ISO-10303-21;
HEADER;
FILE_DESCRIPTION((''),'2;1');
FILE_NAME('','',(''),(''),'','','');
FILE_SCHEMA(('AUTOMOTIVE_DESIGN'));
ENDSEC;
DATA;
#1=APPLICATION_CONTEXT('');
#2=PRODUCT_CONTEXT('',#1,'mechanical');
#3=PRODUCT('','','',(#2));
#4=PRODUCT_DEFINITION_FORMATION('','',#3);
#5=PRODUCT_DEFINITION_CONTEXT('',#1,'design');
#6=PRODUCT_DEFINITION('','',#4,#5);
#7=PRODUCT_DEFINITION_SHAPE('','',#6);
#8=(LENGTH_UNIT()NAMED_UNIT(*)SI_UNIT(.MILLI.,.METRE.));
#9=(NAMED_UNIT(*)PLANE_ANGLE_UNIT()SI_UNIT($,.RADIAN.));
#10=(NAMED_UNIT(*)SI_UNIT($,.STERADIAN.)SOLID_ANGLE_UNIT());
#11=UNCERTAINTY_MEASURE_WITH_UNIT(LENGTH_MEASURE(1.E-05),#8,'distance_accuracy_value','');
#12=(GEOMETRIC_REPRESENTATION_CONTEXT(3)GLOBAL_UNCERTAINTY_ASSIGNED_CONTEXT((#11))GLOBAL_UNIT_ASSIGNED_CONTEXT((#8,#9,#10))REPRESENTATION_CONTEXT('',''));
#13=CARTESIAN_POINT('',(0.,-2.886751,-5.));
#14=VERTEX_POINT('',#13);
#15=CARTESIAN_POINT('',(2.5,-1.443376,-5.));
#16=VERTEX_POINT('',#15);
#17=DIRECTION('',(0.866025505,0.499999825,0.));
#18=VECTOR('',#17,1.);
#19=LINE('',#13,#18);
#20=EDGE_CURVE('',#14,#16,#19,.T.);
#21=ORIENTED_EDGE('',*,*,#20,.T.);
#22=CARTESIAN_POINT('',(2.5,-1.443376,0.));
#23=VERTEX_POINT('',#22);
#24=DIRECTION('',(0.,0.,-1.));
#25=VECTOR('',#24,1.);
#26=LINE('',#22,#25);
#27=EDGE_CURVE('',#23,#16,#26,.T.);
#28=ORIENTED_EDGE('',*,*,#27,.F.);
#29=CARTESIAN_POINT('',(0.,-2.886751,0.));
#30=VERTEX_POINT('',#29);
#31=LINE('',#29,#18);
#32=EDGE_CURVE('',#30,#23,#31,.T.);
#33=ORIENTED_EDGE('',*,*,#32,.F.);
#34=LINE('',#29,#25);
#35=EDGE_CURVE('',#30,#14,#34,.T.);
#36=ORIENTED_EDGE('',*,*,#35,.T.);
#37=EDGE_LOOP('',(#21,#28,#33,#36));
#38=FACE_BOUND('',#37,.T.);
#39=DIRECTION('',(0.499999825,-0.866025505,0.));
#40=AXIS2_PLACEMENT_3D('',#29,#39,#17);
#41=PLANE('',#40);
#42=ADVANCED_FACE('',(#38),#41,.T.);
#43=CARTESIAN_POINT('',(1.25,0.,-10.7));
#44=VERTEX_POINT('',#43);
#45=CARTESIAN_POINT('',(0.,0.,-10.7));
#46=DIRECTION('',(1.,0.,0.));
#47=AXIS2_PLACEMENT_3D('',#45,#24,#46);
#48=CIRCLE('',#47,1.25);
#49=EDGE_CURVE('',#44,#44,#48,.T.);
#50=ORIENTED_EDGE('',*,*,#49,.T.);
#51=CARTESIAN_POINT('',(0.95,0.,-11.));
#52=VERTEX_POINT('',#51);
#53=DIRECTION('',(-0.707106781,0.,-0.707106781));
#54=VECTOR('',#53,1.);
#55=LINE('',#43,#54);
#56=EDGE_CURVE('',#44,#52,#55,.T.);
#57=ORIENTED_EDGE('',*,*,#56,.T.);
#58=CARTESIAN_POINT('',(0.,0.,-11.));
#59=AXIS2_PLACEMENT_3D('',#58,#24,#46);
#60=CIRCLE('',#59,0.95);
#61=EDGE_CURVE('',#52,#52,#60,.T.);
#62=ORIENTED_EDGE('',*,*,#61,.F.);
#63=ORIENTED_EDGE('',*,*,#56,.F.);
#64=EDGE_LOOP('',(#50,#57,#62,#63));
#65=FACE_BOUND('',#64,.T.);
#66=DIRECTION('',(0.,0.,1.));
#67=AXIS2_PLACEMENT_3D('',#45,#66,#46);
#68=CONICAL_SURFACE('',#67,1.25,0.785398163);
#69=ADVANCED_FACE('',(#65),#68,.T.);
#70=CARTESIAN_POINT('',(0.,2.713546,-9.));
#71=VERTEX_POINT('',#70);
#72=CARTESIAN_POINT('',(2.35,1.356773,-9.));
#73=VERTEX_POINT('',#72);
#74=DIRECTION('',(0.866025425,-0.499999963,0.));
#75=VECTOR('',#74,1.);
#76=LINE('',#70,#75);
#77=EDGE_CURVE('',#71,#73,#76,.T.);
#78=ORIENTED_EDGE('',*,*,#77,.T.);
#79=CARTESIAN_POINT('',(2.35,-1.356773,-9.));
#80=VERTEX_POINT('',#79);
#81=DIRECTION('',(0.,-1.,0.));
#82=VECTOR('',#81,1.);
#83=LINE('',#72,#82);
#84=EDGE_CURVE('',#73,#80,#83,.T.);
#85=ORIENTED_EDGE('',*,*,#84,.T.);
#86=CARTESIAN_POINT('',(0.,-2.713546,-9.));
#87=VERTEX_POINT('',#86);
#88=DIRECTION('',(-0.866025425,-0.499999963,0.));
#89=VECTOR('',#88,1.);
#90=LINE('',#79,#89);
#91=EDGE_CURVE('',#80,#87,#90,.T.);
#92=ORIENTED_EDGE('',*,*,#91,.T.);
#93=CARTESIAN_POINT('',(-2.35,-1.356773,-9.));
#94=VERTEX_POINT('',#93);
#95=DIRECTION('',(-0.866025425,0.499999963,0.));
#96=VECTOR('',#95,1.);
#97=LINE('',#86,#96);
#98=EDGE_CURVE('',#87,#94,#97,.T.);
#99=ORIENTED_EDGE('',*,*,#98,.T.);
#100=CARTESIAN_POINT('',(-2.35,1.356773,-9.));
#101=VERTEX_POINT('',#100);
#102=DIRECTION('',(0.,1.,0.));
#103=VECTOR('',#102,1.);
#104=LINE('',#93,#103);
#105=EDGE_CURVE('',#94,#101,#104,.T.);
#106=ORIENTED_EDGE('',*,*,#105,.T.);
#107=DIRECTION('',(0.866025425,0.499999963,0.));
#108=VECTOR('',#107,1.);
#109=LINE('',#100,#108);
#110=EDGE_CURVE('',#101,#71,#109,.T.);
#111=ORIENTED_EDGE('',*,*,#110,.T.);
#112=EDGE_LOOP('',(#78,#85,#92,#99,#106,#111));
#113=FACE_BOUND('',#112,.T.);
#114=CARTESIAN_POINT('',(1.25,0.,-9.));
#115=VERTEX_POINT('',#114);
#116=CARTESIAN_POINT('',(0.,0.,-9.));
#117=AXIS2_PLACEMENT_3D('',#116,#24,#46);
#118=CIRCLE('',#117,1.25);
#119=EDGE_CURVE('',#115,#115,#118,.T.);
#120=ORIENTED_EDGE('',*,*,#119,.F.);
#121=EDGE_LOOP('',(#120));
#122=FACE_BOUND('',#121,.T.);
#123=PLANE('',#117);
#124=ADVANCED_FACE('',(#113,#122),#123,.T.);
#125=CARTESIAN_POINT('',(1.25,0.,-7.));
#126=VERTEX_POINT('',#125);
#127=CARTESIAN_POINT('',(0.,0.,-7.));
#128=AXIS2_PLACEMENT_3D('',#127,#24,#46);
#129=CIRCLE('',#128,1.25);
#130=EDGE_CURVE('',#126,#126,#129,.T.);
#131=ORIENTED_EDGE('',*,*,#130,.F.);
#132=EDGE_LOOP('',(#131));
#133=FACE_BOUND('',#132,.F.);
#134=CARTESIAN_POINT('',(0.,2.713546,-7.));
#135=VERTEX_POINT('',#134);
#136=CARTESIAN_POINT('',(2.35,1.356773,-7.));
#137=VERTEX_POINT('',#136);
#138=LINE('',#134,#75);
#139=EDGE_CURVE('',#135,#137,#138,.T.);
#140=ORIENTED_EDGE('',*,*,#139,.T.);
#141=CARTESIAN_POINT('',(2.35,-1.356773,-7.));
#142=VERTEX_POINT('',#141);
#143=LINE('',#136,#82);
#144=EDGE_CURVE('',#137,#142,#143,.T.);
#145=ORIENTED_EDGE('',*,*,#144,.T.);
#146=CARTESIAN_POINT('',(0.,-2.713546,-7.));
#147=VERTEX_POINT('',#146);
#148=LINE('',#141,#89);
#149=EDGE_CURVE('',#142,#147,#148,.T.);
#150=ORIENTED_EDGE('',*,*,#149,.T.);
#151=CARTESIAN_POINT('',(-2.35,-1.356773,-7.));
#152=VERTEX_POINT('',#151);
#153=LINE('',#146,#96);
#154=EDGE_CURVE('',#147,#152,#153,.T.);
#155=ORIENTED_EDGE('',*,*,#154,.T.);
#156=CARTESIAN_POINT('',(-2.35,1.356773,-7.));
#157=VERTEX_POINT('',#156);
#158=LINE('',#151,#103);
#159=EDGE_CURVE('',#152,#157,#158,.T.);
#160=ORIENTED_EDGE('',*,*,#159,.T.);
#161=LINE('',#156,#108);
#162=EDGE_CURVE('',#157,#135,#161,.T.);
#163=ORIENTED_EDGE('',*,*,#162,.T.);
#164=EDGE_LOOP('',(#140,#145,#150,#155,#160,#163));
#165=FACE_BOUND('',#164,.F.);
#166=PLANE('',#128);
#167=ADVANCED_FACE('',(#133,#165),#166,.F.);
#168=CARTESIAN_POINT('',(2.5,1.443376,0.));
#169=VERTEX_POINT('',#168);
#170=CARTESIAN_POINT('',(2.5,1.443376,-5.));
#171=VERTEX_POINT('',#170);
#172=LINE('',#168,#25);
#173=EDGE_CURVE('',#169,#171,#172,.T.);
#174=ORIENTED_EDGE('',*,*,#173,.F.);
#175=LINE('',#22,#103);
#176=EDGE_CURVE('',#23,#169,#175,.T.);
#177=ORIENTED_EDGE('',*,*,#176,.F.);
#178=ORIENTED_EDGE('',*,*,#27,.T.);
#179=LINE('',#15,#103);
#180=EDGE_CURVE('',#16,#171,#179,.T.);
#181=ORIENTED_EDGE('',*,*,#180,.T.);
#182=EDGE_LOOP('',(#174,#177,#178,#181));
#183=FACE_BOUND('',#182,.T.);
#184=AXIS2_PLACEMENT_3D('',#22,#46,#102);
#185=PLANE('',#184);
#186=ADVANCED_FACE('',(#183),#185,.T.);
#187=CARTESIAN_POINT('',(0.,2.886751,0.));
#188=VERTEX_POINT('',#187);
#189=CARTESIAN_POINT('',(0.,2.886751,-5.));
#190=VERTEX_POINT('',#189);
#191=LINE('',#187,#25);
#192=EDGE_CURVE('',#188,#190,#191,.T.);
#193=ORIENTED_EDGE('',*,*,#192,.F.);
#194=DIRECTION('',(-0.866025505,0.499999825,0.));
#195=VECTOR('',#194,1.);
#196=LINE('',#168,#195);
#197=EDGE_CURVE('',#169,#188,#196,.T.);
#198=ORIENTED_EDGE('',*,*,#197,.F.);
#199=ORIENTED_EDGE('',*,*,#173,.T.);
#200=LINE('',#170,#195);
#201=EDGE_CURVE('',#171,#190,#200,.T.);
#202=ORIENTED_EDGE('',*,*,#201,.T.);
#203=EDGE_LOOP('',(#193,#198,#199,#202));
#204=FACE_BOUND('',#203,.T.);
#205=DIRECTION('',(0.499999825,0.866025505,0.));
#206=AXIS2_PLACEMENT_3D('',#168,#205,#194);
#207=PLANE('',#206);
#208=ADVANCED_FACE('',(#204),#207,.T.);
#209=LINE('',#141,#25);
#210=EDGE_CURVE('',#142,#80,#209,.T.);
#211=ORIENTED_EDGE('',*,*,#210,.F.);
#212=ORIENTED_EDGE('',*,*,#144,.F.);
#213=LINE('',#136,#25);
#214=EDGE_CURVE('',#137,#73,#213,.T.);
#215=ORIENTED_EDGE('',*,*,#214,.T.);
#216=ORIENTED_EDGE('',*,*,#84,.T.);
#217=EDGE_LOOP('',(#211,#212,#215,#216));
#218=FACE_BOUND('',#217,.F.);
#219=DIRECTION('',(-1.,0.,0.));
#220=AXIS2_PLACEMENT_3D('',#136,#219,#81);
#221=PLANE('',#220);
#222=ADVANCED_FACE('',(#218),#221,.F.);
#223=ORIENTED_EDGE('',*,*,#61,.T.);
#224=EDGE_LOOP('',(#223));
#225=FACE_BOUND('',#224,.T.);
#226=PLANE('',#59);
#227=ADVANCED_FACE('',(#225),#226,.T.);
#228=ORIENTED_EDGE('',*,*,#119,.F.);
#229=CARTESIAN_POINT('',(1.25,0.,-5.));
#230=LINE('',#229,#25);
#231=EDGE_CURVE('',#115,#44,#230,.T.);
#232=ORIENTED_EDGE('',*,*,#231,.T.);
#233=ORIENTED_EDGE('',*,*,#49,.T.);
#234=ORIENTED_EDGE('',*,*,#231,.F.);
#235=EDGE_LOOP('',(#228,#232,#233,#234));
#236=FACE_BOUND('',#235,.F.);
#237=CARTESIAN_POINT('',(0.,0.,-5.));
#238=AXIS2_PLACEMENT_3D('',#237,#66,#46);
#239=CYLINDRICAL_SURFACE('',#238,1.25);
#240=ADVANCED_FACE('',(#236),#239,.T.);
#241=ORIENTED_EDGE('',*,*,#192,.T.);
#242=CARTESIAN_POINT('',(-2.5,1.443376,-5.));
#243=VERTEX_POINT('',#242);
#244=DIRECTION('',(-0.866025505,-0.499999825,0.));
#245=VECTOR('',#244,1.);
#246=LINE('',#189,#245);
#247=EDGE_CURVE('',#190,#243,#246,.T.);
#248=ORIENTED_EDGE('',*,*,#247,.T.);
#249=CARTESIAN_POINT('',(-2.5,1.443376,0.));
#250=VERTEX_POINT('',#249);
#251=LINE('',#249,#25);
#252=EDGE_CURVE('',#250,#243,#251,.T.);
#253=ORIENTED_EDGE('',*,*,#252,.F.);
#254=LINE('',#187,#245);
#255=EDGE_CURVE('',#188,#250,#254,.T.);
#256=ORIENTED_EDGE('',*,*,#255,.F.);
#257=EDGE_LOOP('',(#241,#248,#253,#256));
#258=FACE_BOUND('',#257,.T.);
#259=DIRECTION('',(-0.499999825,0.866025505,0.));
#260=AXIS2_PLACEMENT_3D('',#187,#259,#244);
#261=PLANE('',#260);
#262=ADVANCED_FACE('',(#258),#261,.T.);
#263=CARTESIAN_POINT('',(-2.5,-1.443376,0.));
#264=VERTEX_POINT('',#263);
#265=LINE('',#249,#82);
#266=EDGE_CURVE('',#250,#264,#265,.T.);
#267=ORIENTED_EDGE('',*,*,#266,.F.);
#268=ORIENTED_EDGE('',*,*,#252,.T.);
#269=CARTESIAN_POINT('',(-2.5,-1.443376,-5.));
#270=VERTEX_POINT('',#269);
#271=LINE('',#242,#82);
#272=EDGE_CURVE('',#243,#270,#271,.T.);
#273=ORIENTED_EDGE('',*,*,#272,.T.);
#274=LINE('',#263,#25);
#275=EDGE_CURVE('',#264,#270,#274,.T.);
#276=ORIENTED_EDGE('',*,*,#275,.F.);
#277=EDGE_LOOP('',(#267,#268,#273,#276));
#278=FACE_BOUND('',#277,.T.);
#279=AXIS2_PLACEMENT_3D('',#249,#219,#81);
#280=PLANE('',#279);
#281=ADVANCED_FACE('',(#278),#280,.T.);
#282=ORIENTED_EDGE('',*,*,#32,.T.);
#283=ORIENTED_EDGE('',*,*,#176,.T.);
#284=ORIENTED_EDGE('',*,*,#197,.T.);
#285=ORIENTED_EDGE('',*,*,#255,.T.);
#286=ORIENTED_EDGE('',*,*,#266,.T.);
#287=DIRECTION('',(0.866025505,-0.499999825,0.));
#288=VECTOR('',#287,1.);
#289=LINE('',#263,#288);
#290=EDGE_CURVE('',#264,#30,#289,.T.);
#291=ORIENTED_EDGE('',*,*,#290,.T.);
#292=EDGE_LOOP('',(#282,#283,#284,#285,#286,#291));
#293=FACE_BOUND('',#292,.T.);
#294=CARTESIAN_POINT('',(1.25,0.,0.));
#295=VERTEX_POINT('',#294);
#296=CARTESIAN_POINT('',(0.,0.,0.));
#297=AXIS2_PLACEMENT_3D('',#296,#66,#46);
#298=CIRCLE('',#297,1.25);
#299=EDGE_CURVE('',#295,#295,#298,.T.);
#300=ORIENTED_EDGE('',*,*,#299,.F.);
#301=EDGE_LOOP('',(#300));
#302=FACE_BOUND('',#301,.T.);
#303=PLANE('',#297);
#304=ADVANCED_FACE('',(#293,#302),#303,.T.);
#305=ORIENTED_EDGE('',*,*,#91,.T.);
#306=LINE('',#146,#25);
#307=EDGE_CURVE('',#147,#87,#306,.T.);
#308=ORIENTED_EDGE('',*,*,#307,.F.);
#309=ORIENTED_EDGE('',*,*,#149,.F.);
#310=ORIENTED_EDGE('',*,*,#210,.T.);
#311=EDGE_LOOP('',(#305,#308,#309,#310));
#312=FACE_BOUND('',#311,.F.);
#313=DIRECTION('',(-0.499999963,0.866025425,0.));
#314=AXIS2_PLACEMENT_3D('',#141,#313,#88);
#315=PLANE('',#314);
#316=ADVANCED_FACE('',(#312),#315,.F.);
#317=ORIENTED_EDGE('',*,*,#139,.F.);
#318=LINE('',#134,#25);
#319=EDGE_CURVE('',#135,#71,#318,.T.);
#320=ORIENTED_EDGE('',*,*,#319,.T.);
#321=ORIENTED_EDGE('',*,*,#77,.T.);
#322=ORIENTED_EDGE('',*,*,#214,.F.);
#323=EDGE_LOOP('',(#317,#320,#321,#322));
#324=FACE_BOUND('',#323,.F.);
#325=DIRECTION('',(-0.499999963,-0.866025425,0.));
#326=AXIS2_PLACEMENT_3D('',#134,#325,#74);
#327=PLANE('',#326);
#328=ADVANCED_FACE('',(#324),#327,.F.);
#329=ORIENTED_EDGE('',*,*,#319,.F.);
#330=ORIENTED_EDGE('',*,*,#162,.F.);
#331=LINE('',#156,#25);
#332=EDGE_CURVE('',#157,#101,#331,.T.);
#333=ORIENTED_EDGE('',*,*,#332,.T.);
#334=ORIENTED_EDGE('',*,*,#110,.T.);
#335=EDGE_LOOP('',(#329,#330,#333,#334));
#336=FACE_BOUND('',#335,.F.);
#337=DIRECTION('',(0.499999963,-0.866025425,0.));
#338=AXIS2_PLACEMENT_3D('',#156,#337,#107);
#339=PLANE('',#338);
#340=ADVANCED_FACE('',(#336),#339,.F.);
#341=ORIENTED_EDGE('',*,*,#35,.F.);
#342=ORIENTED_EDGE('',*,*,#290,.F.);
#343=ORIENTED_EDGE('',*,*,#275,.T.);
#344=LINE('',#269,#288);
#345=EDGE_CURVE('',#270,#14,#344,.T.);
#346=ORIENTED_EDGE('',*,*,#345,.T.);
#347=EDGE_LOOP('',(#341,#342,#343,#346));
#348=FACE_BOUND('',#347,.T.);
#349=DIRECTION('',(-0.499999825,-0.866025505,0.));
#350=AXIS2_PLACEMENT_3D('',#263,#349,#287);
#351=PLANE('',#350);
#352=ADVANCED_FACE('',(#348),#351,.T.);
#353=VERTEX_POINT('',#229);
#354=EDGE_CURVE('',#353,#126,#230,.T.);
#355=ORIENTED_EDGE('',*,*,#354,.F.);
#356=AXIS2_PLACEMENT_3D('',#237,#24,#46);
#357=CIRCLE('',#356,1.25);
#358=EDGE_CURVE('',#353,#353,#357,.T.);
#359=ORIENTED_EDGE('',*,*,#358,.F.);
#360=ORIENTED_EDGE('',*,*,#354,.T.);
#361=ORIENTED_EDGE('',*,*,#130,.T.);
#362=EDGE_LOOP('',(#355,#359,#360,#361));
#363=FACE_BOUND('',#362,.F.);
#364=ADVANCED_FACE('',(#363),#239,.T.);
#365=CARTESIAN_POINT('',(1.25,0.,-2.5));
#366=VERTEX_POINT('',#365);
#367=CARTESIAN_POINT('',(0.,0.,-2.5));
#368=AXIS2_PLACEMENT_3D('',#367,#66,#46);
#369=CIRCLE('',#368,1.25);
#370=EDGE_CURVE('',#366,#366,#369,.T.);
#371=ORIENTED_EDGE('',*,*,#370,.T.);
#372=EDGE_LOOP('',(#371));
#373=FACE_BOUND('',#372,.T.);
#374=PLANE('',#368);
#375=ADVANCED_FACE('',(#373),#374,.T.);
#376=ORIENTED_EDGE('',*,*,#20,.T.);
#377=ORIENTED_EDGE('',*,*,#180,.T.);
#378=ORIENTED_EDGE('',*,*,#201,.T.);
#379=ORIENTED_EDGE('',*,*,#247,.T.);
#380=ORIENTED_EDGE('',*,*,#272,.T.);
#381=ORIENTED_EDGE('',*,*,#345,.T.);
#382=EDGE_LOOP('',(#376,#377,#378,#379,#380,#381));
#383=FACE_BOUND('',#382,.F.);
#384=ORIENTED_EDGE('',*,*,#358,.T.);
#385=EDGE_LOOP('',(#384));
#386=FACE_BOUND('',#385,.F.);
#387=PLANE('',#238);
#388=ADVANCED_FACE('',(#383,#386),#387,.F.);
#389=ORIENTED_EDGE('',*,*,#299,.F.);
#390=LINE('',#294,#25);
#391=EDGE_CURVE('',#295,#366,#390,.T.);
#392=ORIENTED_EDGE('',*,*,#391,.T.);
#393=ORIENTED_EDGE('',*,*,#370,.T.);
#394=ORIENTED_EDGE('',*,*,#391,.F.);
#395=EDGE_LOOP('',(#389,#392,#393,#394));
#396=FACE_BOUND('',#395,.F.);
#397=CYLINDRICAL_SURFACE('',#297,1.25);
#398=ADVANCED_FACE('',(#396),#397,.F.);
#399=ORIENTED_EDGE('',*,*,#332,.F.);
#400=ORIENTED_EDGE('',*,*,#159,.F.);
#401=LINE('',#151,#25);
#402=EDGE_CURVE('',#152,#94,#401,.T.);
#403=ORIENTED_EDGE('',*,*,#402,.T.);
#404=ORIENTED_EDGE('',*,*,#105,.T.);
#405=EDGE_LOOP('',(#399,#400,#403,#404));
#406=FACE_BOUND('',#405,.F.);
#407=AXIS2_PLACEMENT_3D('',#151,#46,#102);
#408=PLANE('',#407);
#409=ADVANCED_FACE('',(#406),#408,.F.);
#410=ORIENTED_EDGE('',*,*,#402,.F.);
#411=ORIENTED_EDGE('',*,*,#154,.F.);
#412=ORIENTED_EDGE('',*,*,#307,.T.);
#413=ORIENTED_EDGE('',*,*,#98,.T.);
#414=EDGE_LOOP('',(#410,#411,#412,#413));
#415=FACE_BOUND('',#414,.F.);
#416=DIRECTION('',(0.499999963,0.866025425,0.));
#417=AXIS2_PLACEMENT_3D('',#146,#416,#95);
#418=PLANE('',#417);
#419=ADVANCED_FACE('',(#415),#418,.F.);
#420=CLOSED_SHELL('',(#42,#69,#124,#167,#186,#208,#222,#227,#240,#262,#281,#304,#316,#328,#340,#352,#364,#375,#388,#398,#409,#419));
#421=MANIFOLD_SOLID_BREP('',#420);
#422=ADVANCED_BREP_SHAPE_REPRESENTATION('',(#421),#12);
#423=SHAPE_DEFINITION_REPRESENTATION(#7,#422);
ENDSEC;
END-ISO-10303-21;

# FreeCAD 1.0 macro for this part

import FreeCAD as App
import Part
import Sketcher
from FreeCAD import Vector
Q = App.Units.Quantity


def edges_at(feature, points):
    """Names of the edges that pass closest to the given points."""
    edges = feature.Shape.Edges
    near = lambda p: min(range(len(edges)), key=lambda i: edges[i].distToShape(Part.Vertex(*p))[0])
    return sorted({f"Edge{near(p) + 1}" for p in points})


def add_polygon(sketch, points):
    """Adds a closed chain of lines whose ends are joined by coincident constraints."""
    first, n = sketch.GeometryCount, len(points)
    for a, b in zip(points, points[1:] + points[:1]):
        sketch.addGeometry(Part.LineSegment(App.Vector(*a, 0), App.Vector(*b, 0)), False)
    for i in range(n):
        sketch.addConstraint(Sketcher.Constraint("Coincident", first + i, 2, first + (i + 1) % n, 1))

doc = App.newDocument("Part")
body = doc.addObject("PartDesign::Body", "Body")

sketch1 = doc.addObject("Sketcher::SketchObject", "Sketch")
body.addObject(sketch1)
sketch1.AttachmentSupport = (doc.XY_Plane, [""])
sketch1.MapMode = "FlatFace"
add_polygon(sketch1, [(2.5, 1.443376), (0, 2.886751), (-2.5, 1.443376), (-2.5, -1.443376), (0, -2.886751), (2.5, -1.443376)])
sketch1.addConstraint([
    Sketcher.Constraint("Vertical", 2),
    Sketcher.Constraint("Vertical", 5),
    Sketcher.Constraint("Symmetric", 0, 2, 3, 2, -1, 1),
    Sketcher.Constraint("Symmetric", 1, 2, 4, 2, -1, 1),
    Sketcher.Constraint("PointOnObject", 0, 2, -2),
    Sketcher.Constraint("Parallel", 0, 3),
    Sketcher.Constraint("Horizontal", 2, 2, 4, 2),
    Sketcher.Constraint("Angle", 0, Q("150.000012 deg")),
    Sketcher.Constraint("DistanceX", 2, 2, 4, 2, Q("5 mm")),
    Sketcher.Constraint("DistanceY", 2, 2, 2, 1, Q("2.886752 mm")),
])
pad1 = doc.addObject("PartDesign::Pad", "Pad")
body.addObject(pad1)
pad1.Profile = sketch1
pad1.Length = 5
pad1.Reversed = True

sketch2 = doc.addObject("Sketcher::SketchObject", "Sketch001")
body.addObject(sketch2)
sketch2.AttachmentSupport = (doc.XY_Plane, [""])
sketch2.MapMode = "FlatFace"
sketch2.AttachmentOffset = App.Placement(Vector(0, 0, -5), App.Rotation())
sketch2.addGeometry(Part.Circle(Vector(0, 0, 0), Vector(0, 0, 1), 1.25), False)
sketch2.addConstraint([
    Sketcher.Constraint("Coincident", 0, 3, -1, 1),
    Sketcher.Constraint("Diameter", 0, Q("2.5 mm")),
])
pad2 = doc.addObject("PartDesign::Pad", "Pad001")
body.addObject(pad2)
pad2.Profile = sketch2
pad2.Length = 6
pad2.Reversed = True

sketch3 = doc.addObject("Sketcher::SketchObject", "Sketch002")
body.addObject(sketch3)
sketch3.AttachmentSupport = (doc.XY_Plane, [""])
sketch3.MapMode = "FlatFace"
sketch3.addGeometry(Part.Circle(Vector(0, 0, 0), Vector(0, 0, 1), 1.25), False)
sketch3.addConstraint([
    Sketcher.Constraint("Coincident", 0, 3, -1, 1),
    Sketcher.Constraint("Diameter", 0, Q("2.5 mm")),
])
pocket1 = doc.addObject("PartDesign::Pocket", "Pocket")
body.addObject(pocket1)
pocket1.Profile = sketch3
pocket1.Length = 2.5
doc.recompute()

chamfer = doc.addObject("PartDesign::Chamfer", "Chamfer")
body.addObject(chamfer)
chamfer.Base = (pocket1, edges_at(pocket1, [(-1.25, 0, -11)]))
chamfer.Size = 0.3

sketch4 = doc.addObject("Sketcher::SketchObject", "Sketch003")
body.addObject(sketch4)
sketch4.AttachmentSupport = (doc.XY_Plane, [""])
sketch4.MapMode = "FlatFace"
sketch4.AttachmentOffset = App.Placement(Vector(0, 0, -7), App.Rotation())
add_polygon(sketch4, [(0, -2.713546), (-2.35, -1.356773), (-2.35, 1.356773), (0, 2.713546), (2.35, 1.356773), (2.35, -1.356773)])
sketch4.addGeometry(Part.Circle(Vector(0, 0, 0), Vector(0, 0, 1), 1.25), False)
sketch4.addConstraint([
    Sketcher.Constraint("Vertical", 1),
    Sketcher.Constraint("Vertical", 4),
    Sketcher.Constraint("Coincident", 6, 3, -1, 1),
    Sketcher.Constraint("Symmetric", 0, 2, 3, 2, -1, 1),
    Sketcher.Constraint("Symmetric", 2, 2, 5, 2, -1, 1),
    Sketcher.Constraint("PointOnObject", 2, 2, -2),
    Sketcher.Constraint("Parallel", 2, 5),
    Sketcher.Constraint("Horizontal", 1, 2, 3, 2),
    Sketcher.Constraint("Diameter", 6, Q("2.5 mm")),
    Sketcher.Constraint("Angle", 0, Q("150.000002 deg")),
    Sketcher.Constraint("DistanceX", 1, 2, 3, 2, Q("4.7 mm")),
    Sketcher.Constraint("DistanceY", 1, 1, 1, 2, Q("2.713546 mm")),
])
pad3 = doc.addObject("PartDesign::Pad", "Pad002")
body.addObject(pad3)
pad3.Profile = sketch4
pad3.Length = 2
pad3.Reversed = True

doc.recompute()
